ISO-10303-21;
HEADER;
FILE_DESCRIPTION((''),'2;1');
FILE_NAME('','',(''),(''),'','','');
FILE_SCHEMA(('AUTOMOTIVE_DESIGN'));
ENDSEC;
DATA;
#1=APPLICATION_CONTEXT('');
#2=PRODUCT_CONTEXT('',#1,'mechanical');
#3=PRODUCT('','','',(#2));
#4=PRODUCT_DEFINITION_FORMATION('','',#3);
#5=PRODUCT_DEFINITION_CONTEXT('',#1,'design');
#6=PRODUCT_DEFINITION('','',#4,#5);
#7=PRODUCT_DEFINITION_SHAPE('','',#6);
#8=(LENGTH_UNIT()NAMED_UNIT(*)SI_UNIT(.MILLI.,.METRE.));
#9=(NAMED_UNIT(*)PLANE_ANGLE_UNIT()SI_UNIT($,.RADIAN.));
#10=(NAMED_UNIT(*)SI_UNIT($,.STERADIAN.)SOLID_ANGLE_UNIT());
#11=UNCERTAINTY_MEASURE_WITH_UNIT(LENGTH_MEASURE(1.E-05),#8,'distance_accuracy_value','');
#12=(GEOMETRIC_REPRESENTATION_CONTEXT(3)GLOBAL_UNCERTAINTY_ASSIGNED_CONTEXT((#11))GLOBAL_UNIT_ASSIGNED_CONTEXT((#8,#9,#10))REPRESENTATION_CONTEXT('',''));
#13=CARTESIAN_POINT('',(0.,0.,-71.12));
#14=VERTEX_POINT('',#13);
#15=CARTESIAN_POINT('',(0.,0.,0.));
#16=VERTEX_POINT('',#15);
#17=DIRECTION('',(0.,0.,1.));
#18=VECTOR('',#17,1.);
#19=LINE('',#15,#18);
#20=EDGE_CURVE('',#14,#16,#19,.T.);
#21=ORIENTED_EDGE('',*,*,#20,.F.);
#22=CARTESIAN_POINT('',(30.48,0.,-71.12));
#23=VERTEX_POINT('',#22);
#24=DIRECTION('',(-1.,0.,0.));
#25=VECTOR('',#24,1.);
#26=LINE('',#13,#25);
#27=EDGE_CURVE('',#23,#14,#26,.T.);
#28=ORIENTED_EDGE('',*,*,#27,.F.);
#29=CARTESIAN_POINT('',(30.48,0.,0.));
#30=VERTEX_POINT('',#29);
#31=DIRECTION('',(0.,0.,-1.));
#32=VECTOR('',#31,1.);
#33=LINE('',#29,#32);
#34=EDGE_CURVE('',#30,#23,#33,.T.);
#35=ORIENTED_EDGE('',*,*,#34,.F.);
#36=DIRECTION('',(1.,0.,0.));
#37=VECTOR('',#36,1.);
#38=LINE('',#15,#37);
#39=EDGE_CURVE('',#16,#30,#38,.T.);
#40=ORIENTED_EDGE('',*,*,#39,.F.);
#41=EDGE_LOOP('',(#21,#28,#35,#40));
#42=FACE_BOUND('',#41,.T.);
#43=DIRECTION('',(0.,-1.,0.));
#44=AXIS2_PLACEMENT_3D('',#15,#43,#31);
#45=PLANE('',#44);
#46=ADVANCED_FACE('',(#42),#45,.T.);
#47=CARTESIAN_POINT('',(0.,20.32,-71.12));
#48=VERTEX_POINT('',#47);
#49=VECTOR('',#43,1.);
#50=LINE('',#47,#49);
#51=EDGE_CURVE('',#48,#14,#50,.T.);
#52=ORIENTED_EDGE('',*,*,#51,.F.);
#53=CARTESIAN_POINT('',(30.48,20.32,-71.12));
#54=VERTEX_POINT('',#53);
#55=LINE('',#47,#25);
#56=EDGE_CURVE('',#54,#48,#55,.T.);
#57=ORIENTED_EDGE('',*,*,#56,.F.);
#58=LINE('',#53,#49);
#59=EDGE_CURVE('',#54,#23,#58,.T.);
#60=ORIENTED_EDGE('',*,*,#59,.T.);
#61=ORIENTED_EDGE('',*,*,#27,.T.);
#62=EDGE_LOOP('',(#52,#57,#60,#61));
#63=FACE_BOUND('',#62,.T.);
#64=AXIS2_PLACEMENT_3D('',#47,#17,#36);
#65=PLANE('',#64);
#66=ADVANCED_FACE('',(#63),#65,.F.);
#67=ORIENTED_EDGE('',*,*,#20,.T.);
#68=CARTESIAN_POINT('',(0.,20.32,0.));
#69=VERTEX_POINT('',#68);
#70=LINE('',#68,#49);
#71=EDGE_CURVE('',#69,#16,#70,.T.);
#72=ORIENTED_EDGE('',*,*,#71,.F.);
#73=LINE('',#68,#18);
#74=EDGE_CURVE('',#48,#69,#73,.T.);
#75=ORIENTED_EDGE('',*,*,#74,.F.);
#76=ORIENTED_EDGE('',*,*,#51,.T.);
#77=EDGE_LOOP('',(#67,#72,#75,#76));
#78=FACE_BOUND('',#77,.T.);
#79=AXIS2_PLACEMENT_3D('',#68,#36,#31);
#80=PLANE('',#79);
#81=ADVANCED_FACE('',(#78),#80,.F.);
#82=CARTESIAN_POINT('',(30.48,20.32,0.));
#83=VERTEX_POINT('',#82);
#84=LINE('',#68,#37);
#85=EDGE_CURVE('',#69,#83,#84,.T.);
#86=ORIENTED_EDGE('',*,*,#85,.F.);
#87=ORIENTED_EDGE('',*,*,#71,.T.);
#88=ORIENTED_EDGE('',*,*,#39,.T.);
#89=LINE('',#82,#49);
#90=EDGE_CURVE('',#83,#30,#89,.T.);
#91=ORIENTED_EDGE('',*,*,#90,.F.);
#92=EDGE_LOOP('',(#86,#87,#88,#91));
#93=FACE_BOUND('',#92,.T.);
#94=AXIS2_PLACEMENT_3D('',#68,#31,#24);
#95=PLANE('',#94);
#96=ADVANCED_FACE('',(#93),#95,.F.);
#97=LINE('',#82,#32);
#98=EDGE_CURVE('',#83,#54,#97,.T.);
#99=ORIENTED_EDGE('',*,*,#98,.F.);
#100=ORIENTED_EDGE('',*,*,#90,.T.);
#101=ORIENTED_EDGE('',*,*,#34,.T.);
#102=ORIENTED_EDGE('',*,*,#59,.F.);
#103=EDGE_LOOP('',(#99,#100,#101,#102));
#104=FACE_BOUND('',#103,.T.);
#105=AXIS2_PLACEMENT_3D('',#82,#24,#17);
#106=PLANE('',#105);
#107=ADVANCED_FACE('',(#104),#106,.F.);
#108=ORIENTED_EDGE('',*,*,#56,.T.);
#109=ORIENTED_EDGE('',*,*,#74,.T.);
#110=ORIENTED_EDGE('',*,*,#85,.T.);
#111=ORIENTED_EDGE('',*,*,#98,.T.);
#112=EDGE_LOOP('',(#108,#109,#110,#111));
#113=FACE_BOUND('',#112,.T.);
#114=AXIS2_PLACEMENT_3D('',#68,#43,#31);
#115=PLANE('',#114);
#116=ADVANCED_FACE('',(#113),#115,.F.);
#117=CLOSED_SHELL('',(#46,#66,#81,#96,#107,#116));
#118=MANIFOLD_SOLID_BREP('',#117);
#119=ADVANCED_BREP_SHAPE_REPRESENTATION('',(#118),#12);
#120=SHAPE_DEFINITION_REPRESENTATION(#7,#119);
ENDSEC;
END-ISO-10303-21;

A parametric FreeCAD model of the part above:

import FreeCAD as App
import Part
import Sketcher

V = App.Vector
Q = App.Units.Quantity

doc = App.newDocument("Part")
body = doc.addObject("PartDesign::Body", "Body")

# Sketch on XZ plane
sketch1 = doc.addObject("Sketcher::SketchObject", "Sketch")
body.addObject(sketch1)
sketch1.AttachmentSupport = (doc.XZ_Plane, [""])
sketch1.MapMode = "FlatFace"
sketch1.addGeometry([
    Part.LineSegment(V(0, -71, 0), V(0, 0, 0)),
    Part.LineSegment(V(0, 0, 0), V(30, 0, 0)),
    Part.LineSegment(V(30, 0, 0), V(30, -71, 0)),
    Part.LineSegment(V(30, -71, 0), V(0, -71, 0)),
], False)
sketch1.addConstraint([
    Sketcher.Constraint("Coincident", 0, 2, 1, 1),
    Sketcher.Constraint("Coincident", 1, 2, 2, 1),
    Sketcher.Constraint("Coincident", 2, 2, 3, 1),
    Sketcher.Constraint("Coincident", 3, 2, 0, 1),
    Sketcher.Constraint("Vertical", 0),
    Sketcher.Constraint("Horizontal", 1),
    Sketcher.Constraint("Vertical", 2),
    Sketcher.Constraint("Horizontal", 3),
    Sketcher.Constraint("Coincident", 0, 2, -1, 1),
    Sketcher.Constraint("DistanceX", 1, 1, 1, 2, Q("1.2 in")),
    Sketcher.Constraint("DistanceY", 0, 1, 0, 2, Q("2.8 in")),
])
pad1 = doc.addObject("PartDesign::Pad", "Pad")
body.addObject(pad1)
pad1.Profile = sketch1
pad1.Length = Q("0.8 in")
pad1.Reversed = True

doc.recompute()
